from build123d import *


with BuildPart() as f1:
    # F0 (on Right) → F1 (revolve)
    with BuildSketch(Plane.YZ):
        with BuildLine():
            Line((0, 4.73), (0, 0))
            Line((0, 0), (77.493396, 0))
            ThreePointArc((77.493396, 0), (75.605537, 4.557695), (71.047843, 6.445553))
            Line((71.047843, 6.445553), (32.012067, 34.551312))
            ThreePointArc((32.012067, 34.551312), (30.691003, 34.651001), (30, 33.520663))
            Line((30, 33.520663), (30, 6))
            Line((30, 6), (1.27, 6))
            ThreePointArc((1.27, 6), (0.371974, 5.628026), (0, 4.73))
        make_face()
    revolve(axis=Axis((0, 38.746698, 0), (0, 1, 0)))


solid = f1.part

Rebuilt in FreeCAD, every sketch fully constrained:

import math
import FreeCAD as App
import Part
import Sketcher

V = App.Vector
Q = App.Units.Quantity

doc = App.newDocument("Part")
body = doc.addObject("PartDesign::Body", "Body")

# Sketch on YZ plane
sketch1 = body.newObject("Sketcher::SketchObject", "Sketch")
sketch1.AttachmentSupport = (doc.getObject("YZ_Plane"), [""])
sketch1.MapMode = "FlatFace"
sketch1.addGeometry(Part.LineSegment(V(0, 4.73, 0), V(0, 0, 0)), False)
sketch1.addGeometry(Part.LineSegment(V(0, 0, 0), V(77.493396, 0, 0)), False)
sketch1.addGeometry(Part.ArcOfCircle(Part.Circle(V(71.047844, 0.000001, 0), V(0, 0, 1), 6.445552), math.radians(-0.000008), math.radians(90.000008)), False)
sketch1.addGeometry(Part.LineSegment(V(71.047843, 6.445553, 0), V(32.012067, 34.551312, 0)), False)
sketch1.addGeometry(Part.ArcOfCircle(Part.Circle(V(31.27, 33.520664, 0), V(0, 0, 1), 1.27), math.radians(54.246094), math.radians(180.000036)), False)
sketch1.addGeometry(Part.LineSegment(V(30, 33.520663, 0), V(30, 6, 0)), False)
sketch1.addGeometry(Part.LineSegment(V(30, 6, 0), V(1.27, 6, 0)), False)
sketch1.addGeometry(Part.ArcOfCircle(Part.Circle(V(1.269999, 4.730001, 0), V(0, 0, 1), 1.269999), math.radians(89.99994), math.radians(180.00006)), False)
sketch1.addConstraint(Sketcher.Constraint("Coincident", 0, 2, 1, 1))
sketch1.addConstraint(Sketcher.Constraint("Coincident", 1, 2, 2, 1))
sketch1.addConstraint(Sketcher.Constraint("Coincident", 2, 2, 3, 1))
sketch1.addConstraint(Sketcher.Constraint("Tangent", 3, 2, 4, 1))
sketch1.addConstraint(Sketcher.Constraint("Tangent", 4, 2, 5, 1))
sketch1.addConstraint(Sketcher.Constraint("Coincident", 5, 2, 6, 1))
sketch1.addConstraint(Sketcher.Constraint("Tangent", 6, 2, 7, 1))
sketch1.addConstraint(Sketcher.Constraint("Tangent", 7, 2, 0, 1))
sketch1.addConstraint(Sketcher.Constraint("Vertical", 0))
sketch1.addConstraint(Sketcher.Constraint("Horizontal", 1))
sketch1.addConstraint(Sketcher.Constraint("Vertical", 5))
sketch1.addConstraint(Sketcher.Constraint("Horizontal", 6))
sketch1.addConstraint(Sketcher.Constraint("Coincident", 0, 2, -1, 1))
sketch1.addConstraint(Sketcher.Constraint("Equal", 4, 7))
sketch1.addConstraint(Sketcher.Constraint("PointOnObject", 2, 3, -1))
sketch1.addConstraint(Sketcher.Constraint("Radius", 4, Q("0.05 in")))
sketch1.addConstraint(Sketcher.Constraint("DistanceX", 6, 2, 6, 1, Q("28.73 mm")))
sketch1.addConstraint(Sketcher.Constraint("DistanceY", 0, 2, 0, 1, Q("4.73 mm")))
sketch1.addConstraint(Sketcher.Constraint("Radius", 2, Q("6.445552 mm")))
sketch1.addConstraint(Sketcher.Constraint("Distance", 3, Q("48.101201 mm")))
sketch1.addConstraint(Sketcher.Constraint("DistanceX", 1, 1, 1, 2, Q("77.493396 mm")))
sketch1.addConstraint(Sketcher.Constraint("DistanceY", 5, 2, 5, 1, Q("27.520663 mm")))
revolution = body.newObject("PartDesign::Revolution", "Revolution")
revolution.Profile = sketch1
revolution.ReferenceAxis = (sketch1, ["H_Axis"])
revolution.Angle = 360

doc.recompute()
